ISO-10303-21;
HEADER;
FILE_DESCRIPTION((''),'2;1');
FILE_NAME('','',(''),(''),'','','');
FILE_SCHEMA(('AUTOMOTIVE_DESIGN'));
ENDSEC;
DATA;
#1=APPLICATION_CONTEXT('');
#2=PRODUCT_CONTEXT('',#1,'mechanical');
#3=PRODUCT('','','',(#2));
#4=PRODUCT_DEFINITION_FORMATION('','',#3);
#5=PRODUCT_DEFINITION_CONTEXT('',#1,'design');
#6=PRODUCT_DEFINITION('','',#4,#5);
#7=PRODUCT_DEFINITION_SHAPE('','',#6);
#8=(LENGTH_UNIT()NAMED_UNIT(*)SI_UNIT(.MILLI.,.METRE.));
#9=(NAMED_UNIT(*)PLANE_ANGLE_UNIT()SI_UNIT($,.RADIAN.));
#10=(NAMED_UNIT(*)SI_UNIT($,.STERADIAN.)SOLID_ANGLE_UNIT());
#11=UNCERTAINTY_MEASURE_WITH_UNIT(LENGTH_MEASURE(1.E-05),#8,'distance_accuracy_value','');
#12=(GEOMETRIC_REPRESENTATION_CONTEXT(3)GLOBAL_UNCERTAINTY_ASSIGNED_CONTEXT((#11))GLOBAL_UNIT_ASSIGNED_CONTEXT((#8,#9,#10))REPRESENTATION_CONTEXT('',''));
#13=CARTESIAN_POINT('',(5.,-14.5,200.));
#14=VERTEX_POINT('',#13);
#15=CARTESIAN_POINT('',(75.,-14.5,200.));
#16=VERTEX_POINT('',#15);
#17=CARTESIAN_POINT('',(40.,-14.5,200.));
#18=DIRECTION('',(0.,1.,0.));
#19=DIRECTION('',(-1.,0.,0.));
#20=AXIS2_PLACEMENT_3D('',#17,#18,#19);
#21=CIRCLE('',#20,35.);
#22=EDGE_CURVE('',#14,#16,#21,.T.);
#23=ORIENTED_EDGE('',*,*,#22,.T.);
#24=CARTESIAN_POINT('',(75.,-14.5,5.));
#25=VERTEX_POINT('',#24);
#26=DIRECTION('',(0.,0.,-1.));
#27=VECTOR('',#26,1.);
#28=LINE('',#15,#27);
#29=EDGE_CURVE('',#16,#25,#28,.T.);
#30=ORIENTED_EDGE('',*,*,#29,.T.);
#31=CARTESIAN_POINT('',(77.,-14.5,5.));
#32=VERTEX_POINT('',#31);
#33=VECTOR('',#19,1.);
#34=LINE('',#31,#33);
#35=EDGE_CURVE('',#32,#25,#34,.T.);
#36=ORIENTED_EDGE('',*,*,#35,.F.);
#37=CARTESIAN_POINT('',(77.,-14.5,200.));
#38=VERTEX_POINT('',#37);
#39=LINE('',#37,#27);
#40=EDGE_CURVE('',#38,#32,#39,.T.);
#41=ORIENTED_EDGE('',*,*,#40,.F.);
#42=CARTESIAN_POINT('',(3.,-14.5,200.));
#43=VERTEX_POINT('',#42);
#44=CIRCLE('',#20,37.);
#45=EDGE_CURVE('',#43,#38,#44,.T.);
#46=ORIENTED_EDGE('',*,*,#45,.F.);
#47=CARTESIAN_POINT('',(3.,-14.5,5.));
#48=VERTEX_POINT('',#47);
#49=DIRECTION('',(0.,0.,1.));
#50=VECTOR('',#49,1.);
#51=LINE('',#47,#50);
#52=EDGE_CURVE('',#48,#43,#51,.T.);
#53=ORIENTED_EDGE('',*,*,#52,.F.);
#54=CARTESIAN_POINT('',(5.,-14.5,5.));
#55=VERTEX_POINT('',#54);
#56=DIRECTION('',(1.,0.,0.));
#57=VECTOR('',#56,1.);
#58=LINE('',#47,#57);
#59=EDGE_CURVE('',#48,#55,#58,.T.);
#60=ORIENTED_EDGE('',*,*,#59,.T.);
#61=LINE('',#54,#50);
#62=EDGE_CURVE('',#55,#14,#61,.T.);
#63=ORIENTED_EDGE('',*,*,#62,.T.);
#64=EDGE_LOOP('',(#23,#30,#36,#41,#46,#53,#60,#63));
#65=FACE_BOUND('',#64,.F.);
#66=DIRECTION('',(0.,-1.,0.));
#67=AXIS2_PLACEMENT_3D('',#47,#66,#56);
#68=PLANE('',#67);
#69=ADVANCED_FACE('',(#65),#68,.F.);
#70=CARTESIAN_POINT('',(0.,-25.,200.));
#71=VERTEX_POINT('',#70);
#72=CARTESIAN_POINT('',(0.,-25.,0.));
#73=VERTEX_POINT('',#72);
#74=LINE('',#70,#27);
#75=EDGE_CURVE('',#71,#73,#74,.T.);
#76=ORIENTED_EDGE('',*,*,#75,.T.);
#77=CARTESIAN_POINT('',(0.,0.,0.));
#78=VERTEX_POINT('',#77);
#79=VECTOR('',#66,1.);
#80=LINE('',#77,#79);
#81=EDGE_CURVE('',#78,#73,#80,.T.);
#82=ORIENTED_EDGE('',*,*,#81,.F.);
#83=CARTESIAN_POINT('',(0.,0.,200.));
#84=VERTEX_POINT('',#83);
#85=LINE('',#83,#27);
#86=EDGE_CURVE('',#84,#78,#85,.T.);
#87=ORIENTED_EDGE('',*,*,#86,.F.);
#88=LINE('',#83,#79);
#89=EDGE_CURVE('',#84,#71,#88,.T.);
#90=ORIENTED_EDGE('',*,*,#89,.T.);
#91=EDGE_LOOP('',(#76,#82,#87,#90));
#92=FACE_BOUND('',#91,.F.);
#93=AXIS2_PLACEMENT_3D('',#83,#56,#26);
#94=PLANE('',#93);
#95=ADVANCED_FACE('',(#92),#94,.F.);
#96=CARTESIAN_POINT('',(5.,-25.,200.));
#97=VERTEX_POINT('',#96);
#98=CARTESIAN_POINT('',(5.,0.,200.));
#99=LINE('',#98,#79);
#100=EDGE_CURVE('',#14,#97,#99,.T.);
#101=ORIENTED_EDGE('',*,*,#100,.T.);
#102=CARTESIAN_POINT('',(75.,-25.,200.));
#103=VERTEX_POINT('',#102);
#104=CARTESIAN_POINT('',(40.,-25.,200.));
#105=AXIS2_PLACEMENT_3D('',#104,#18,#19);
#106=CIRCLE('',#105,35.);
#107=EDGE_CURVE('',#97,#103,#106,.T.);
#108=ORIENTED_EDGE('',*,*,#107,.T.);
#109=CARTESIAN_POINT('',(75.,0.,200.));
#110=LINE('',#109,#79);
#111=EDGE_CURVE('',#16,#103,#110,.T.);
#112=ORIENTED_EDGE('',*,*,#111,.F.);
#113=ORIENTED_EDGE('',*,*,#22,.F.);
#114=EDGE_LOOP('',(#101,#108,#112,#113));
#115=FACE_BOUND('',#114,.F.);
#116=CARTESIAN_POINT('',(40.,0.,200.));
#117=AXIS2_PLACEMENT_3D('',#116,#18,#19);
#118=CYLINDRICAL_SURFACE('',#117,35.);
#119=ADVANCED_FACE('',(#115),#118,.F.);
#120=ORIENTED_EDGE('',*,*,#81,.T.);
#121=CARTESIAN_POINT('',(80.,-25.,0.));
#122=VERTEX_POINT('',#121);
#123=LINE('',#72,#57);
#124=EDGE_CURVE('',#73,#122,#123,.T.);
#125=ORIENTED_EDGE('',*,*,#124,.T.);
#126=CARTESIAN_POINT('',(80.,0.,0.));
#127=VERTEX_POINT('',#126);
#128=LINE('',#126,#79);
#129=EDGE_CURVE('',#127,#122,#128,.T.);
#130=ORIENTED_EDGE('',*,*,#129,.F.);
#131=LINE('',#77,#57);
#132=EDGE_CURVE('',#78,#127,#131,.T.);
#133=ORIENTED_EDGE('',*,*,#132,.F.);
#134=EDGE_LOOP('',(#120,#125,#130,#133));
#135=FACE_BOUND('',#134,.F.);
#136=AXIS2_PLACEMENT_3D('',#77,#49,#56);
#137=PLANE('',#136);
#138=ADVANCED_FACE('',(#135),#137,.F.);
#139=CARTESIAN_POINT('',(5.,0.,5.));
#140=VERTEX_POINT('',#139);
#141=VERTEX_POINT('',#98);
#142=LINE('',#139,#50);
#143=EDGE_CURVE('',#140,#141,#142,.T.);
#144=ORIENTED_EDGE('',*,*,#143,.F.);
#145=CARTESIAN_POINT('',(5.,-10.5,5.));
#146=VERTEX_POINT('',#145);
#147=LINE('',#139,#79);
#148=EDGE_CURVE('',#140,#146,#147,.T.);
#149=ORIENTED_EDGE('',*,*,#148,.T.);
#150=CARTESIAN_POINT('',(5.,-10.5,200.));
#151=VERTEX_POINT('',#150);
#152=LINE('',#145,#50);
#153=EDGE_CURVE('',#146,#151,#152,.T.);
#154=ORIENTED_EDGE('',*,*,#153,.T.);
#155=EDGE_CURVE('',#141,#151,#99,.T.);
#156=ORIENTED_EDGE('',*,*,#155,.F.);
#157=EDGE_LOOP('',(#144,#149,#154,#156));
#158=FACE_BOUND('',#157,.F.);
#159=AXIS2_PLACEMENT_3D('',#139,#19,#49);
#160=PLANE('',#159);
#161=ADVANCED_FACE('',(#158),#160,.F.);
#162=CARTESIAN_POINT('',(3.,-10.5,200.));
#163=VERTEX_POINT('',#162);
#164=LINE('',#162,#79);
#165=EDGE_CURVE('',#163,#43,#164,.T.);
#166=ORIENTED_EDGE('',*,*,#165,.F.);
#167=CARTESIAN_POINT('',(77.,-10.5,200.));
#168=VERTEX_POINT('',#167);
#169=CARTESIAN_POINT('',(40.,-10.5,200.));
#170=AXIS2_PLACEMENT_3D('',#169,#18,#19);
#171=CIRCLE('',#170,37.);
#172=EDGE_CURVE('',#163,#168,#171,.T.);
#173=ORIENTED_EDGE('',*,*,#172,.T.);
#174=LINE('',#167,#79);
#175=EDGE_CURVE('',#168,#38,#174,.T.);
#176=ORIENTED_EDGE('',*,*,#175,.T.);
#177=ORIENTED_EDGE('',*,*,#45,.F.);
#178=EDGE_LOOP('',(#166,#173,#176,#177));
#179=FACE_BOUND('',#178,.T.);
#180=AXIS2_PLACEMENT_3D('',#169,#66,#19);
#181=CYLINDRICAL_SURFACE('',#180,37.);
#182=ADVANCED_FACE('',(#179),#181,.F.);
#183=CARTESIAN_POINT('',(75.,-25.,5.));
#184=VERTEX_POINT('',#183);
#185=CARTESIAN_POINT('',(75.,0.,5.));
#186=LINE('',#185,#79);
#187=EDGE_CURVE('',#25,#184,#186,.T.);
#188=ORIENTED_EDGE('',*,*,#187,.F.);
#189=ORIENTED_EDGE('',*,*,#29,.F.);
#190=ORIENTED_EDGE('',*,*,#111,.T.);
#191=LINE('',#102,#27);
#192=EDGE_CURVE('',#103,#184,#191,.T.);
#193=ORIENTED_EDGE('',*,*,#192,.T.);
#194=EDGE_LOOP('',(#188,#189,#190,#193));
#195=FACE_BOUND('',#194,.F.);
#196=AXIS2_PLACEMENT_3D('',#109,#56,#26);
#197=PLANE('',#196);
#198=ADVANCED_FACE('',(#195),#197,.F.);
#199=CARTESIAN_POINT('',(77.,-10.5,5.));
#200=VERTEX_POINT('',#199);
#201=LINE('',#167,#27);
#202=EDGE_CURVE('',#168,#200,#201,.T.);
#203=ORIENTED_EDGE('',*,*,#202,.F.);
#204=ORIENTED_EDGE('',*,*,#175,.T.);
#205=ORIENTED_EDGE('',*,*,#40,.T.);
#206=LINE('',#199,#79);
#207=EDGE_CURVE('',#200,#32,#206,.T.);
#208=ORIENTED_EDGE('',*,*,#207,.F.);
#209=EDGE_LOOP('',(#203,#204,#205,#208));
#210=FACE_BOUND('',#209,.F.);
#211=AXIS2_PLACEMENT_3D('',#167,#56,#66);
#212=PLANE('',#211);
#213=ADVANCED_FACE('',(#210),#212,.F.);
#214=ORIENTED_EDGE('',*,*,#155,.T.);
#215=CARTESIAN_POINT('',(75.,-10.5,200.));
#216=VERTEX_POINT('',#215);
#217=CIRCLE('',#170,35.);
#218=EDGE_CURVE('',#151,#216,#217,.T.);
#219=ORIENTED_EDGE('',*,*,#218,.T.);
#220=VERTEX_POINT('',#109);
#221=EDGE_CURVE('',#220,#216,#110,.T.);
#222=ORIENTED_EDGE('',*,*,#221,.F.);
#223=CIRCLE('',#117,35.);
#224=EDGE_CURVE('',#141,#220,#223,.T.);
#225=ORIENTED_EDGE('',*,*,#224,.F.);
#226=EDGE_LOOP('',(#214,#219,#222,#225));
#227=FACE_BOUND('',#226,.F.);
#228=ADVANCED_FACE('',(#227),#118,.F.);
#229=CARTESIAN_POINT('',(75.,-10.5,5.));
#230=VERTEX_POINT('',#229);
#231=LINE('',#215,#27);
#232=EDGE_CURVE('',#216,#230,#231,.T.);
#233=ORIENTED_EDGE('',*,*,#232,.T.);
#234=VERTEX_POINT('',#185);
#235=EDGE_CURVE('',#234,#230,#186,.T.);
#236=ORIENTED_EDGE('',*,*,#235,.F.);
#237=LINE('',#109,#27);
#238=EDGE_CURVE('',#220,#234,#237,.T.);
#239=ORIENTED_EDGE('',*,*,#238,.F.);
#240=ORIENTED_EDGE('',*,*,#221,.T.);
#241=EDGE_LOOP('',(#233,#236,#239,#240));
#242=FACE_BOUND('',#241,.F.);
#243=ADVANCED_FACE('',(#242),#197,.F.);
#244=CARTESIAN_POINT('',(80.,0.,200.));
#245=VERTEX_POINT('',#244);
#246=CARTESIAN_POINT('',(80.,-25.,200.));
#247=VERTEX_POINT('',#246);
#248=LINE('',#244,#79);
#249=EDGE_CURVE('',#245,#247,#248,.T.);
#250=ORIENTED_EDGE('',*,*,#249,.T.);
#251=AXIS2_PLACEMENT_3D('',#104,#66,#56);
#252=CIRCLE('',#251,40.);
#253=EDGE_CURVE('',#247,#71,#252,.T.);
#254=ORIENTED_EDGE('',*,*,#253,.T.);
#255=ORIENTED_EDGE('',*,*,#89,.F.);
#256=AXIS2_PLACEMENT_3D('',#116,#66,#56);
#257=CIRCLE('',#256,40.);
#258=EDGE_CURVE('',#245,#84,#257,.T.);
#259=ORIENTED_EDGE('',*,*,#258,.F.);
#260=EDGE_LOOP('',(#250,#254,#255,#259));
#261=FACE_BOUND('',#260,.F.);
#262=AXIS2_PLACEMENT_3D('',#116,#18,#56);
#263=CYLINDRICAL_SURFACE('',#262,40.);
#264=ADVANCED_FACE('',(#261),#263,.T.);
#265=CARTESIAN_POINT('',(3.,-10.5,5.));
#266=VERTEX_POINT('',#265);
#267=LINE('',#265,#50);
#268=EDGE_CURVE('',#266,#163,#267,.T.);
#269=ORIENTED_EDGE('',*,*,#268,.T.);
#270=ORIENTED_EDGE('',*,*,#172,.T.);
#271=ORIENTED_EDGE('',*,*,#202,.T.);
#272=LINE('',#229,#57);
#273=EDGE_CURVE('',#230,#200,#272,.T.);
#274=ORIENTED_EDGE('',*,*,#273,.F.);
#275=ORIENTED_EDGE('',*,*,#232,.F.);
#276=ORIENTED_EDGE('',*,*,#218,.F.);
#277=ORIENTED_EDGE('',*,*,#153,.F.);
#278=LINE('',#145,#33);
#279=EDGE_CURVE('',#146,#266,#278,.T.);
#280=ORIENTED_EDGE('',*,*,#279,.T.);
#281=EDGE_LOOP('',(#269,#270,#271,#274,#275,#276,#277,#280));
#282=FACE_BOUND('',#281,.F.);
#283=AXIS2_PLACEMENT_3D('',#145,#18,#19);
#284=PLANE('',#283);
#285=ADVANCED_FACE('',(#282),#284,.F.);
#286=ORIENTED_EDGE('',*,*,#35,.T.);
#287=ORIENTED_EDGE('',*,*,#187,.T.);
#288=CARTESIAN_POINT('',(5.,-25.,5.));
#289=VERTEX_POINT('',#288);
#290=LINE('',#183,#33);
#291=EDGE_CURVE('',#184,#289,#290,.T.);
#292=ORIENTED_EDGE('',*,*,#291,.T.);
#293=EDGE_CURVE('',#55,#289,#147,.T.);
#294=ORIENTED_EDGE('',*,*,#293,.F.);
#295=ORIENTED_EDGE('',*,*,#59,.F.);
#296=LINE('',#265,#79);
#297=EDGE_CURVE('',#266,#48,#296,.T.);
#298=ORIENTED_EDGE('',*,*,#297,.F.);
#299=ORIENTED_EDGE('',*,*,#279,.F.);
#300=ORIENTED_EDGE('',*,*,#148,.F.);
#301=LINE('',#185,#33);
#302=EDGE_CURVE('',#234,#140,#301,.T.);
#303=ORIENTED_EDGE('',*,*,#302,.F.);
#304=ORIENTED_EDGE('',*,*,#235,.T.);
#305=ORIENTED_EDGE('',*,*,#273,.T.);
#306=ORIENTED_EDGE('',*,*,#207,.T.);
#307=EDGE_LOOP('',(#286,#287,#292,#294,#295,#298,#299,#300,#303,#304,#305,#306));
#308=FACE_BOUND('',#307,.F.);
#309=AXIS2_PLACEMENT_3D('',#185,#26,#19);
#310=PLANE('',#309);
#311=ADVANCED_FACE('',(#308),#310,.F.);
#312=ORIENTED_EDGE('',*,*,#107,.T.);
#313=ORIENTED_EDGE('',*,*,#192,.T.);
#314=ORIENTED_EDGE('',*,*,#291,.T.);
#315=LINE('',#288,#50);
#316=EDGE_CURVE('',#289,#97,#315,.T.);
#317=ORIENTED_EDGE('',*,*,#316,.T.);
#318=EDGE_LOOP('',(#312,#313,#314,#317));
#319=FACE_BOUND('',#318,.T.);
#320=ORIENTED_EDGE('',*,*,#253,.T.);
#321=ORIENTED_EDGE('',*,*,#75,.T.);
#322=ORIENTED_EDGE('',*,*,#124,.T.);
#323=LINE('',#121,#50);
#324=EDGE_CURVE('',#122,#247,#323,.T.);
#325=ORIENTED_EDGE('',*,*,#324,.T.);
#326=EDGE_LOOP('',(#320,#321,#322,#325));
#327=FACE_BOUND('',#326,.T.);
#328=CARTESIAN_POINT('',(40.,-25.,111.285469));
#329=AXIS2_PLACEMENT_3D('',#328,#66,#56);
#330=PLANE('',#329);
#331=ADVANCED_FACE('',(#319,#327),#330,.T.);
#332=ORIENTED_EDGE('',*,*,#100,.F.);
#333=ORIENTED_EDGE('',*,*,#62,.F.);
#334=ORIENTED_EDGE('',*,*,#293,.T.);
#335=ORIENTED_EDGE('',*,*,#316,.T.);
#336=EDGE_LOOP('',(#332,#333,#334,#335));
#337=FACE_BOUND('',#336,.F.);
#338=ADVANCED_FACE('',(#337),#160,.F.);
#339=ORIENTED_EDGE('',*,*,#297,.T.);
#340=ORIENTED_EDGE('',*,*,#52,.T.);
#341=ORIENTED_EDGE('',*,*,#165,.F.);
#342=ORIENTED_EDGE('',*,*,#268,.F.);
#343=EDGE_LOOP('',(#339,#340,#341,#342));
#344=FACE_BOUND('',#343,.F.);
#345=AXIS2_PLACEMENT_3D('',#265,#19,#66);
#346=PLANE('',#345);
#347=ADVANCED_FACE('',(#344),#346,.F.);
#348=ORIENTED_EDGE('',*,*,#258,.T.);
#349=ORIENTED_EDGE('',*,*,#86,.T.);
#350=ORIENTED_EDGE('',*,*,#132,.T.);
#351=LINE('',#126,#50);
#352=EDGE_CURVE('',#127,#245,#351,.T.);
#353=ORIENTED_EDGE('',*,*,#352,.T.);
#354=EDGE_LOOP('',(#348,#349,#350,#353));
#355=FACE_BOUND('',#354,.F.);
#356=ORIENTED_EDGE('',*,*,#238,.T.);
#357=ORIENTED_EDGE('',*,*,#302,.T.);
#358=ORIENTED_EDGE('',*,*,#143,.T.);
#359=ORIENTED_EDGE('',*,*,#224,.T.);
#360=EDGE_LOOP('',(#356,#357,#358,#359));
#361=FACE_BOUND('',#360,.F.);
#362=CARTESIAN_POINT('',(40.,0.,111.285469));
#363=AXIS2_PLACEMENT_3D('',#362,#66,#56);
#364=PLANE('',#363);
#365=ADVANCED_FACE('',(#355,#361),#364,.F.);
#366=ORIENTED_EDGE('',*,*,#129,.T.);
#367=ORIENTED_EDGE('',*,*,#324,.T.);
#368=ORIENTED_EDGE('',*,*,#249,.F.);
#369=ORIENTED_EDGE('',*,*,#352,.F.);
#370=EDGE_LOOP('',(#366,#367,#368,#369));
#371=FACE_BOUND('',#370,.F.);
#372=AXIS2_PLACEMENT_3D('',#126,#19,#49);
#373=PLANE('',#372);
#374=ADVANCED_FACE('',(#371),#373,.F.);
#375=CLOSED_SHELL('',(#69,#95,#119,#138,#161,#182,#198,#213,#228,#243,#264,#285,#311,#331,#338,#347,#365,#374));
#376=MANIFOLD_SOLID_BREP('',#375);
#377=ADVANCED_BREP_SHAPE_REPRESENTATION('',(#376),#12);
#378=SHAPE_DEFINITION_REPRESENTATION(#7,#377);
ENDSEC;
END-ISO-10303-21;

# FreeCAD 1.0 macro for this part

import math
import FreeCAD as App
import Part
import Sketcher

V = App.Vector


def add_polygon(sketch, points):
    """Adds a closed chain of lines whose ends are joined by coincident constraints."""
    first, n = sketch.GeometryCount, len(points)
    for a, b in zip(points, points[1:] + points[:1]):
        sketch.addGeometry(Part.LineSegment(App.Vector(*a, 0), App.Vector(*b, 0)), False)
    for i in range(n):
        sketch.addConstraint(Sketcher.Constraint("Coincident", first + i, 2, first + (i + 1) % n, 1))

doc = App.newDocument("Part")
params = doc.addObject("Spreadsheet::Sheet", "Params")
for row, (alias, value) in enumerate([
    ("sketch1_radius", "40 mm"),
    ("sketch1_radius2", "35 mm"),
    ("sketch1_height", "200 mm"),
    ("sketch1_height2", "195 mm"),
    ("pad1_length", "25 mm"),
    ("sketch2_width", "2 mm"),
    ("sketch2_height", "4 mm"),
    ("sketch3_radius", "35 mm"),
    ("sketch3_height", "195 mm"),
], start=1):
    params.set(f"A{row}", alias)
    params.set(f"B{row}", "=" + value)
    params.setAlias(f"B{row}", alias)

body = doc.addObject("PartDesign::Body", "Body")

# Sketch on XZ plane
sketch1 = doc.addObject("Sketcher::SketchObject", "Sketch")
body.addObject(sketch1)
sketch1.AttachmentSupport = (doc.XZ_Plane, [""])
sketch1.MapMode = "FlatFace"
sketch1.addGeometry(Part.LineSegment(V(0, 200, 0), V(0, 0, 0)), False)
sketch1.addGeometry(Part.LineSegment(V(0, 0, 0), V(80, 0, 0)), False)
sketch1.addGeometry(Part.LineSegment(V(80, 0, 0), V(80, 200, 0)), False)
sketch1.addGeometry(Part.ArcOfCircle(Part.Circle(V(40, 200, 0), V(0, 0, 1), 40), math.radians(0), math.radians(180)), False)
sketch1.addGeometry(Part.LineSegment(V(5, 5, 0), V(5, 200, 0)), False)
sketch1.addGeometry(Part.ArcOfCircle(Part.Circle(V(40, 200, 0), V(0, 0, 1), 35), math.radians(0), math.radians(180)), False)
sketch1.addGeometry(Part.LineSegment(V(75, 200, 0), V(75, 5, 0)), False)
sketch1.addGeometry(Part.LineSegment(V(75, 5, 0), V(5, 5, 0)), False)
sketch1.addConstraint(Sketcher.Constraint("Coincident", 0, 2, 1, 1))
sketch1.addConstraint(Sketcher.Constraint("Coincident", 1, 2, 2, 1))
sketch1.addConstraint(Sketcher.Constraint("Tangent", 2, 2, 3, 1))
sketch1.addConstraint(Sketcher.Constraint("Tangent", 3, 2, 0, 1))
sketch1.addConstraint(Sketcher.Constraint("Tangent", 4, 2, 5, 2))
sketch1.addConstraint(Sketcher.Constraint("Tangent", 5, 1, 6, 1))
sketch1.addConstraint(Sketcher.Constraint("Coincident", 6, 2, 7, 1))
sketch1.addConstraint(Sketcher.Constraint("Coincident", 7, 2, 4, 1))
sketch1.addConstraint(Sketcher.Constraint("Vertical", 0))
sketch1.addConstraint(Sketcher.Constraint("Horizontal", 1))
sketch1.addConstraint(Sketcher.Constraint("Vertical", 2))
sketch1.addConstraint(Sketcher.Constraint("Vertical", 4))
sketch1.addConstraint(Sketcher.Constraint("Vertical", 6))
sketch1.addConstraint(Sketcher.Constraint("Horizontal", 7))
sketch1.addConstraint(Sketcher.Constraint("Coincident", 0, 2, -1, 1))
sketch1.addConstraint(Sketcher.Constraint("Coincident", 5, 3, 3, 3))
sketch1.addConstraint(Sketcher.Constraint("Radius", 3, 40.0))
sketch1.addConstraint(Sketcher.Constraint("Radius", 5, 35.0))
sketch1.addConstraint(Sketcher.Constraint("DistanceY", 0, 2, 0, 1, 200.0))
sketch1.addConstraint(Sketcher.Constraint("DistanceY", 4, 1, 4, 2, 195.0))
sketch1.setExpression("Constraints[16]", "Params.sketch1_radius")
sketch1.setExpression("Constraints[17]", "Params.sketch1_radius2")
sketch1.setExpression("Constraints[18]", "Params.sketch1_height")
sketch1.setExpression("Constraints[19]", "Params.sketch1_height2")
pad1 = doc.addObject("PartDesign::Pad", "Pad")
body.addObject(pad1)
pad1.Profile = sketch1
pad1.setExpression("Length", "Params.pad1_length")

# Sketch on XY plane
sketch2 = doc.addObject("Sketcher::SketchObject", "Sketch001")
body.addObject(sketch2)
sketch2.AttachmentSupport = (doc.XY_Plane, [""])
sketch2.MapMode = "FlatFace"
sketch2.AttachmentOffset = App.Placement(V(0, 0, 5), App.Rotation())
add_polygon(sketch2, [(5, -10.5), (3, -10.5), (3, -14.5), (5, -14.5)])  # lines 0-3
sketch2.addConstraint(Sketcher.Constraint("Horizontal", 0))
sketch2.addConstraint(Sketcher.Constraint("Vertical", 1))
sketch2.addConstraint(Sketcher.Constraint("Horizontal", 2))
sketch2.addConstraint(Sketcher.Constraint("Vertical", 3))
sketch2.addConstraint(Sketcher.Constraint("DistanceX", 0, 2, 0, 1, 2.0))
sketch2.addConstraint(Sketcher.Constraint("DistanceY", 1, 2, 1, 1, 4.0))
sketch2.addConstraint(Sketcher.Constraint("DistanceX", -1, 1, 0, 2, 3.0))
sketch2.addConstraint(Sketcher.Constraint("DistanceY", 0, 2, -1, 1, 10.5))
sketch2.setExpression("Constraints[8]", "Params.sketch2_width")
sketch2.setExpression("Constraints[9]", "Params.sketch2_height")

# Sketch on XZ plane
sketch3 = doc.addObject("Sketcher::SketchObject", "Sketch002")
body.addObject(sketch3)
sketch3.AttachmentSupport = (doc.XZ_Plane, [""])
sketch3.MapMode = "FlatFace"
sketch3.AttachmentOffset = App.Placement(V(0, 0, 25), App.Rotation())
sketch3.addGeometry(Part.LineSegment(V(5, 5, 0), V(5, 200, 0)), False)
sketch3.addGeometry(Part.ArcOfCircle(Part.Circle(V(40, 200, 0), V(0, 0, 1), 35), math.radians(0), math.radians(180)), False)
sketch3.addGeometry(Part.LineSegment(V(75, 200, 0), V(75, 5, 0)), False)
sketch3.addConstraint(Sketcher.Constraint("Tangent", 0, 2, 1, 2))
sketch3.addConstraint(Sketcher.Constraint("Tangent", 1, 1, 2, 1))
sketch3.addConstraint(Sketcher.Constraint("Vertical", 0))
sketch3.addConstraint(Sketcher.Constraint("Vertical", 2))
sketch3.addConstraint(Sketcher.Constraint("Horizontal", 0, 1, 2, 2))
sketch3.addConstraint(Sketcher.Constraint("Radius", 1, 35.0))
sketch3.addConstraint(Sketcher.Constraint("DistanceY", 0, 1, 0, 2, 195.0))
sketch3.addConstraint(Sketcher.Constraint("DistanceX", -1, 1, 1, 3, 40.0))
sketch3.addConstraint(Sketcher.Constraint("DistanceY", -1, 1, 1, 3, 200.0))
sketch3.setExpression("Constraints[5]", "Params.sketch3_radius")
sketch3.setExpression("Constraints[6]", "Params.sketch3_height")
doc.recompute()

subtractivepipe = doc.addObject("PartDesign::SubtractivePipe", "SubtractivePipe")
body.addObject(subtractivepipe)
subtractivepipe.Profile = sketch2
subtractivepipe.Spine = (sketch3, ["Edge1", "Edge2", "Edge3"])

doc.recompute()
